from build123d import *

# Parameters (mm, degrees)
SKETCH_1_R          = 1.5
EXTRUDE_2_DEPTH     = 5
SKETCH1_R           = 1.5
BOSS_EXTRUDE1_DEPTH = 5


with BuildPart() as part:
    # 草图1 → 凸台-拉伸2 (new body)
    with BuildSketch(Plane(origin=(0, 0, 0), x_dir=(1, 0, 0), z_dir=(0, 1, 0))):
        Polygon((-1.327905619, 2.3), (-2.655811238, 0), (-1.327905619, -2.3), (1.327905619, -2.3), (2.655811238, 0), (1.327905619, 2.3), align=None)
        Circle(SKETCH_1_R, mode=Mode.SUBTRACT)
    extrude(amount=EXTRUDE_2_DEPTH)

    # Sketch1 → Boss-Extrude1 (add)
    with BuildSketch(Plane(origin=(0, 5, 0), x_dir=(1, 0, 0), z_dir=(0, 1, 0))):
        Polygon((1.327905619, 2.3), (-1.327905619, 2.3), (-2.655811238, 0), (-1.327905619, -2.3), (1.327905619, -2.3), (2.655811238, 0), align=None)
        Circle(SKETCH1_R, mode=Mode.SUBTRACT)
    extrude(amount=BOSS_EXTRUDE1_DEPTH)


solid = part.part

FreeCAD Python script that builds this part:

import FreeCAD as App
import Part
import Sketcher
Q = App.Units.Quantity


def add_polygon(sketch, points):
    """Adds a closed chain of lines whose ends are joined by coincident constraints."""
    first, n = sketch.GeometryCount, len(points)
    for a, b in zip(points, points[1:] + points[:1]):
        sketch.addGeometry(Part.LineSegment(App.Vector(*a, 0), App.Vector(*b, 0)), False)
    for i in range(n):
        sketch.addConstraint(Sketcher.Constraint("Coincident", first + i, 2, first + (i + 1) % n, 1))

doc = App.newDocument("Part")
params = doc.addObject("Spreadsheet::Sheet", "Params")
for row, (alias, value) in enumerate([
    ("sketch1_diameter", "3 mm"),
    ("pad1_length", "5 mm"),
    ("sketch2_diameter", "3 mm"),
    ("pad2_length", "5 mm"),
], start=1):
    params.set(f"A{row}", alias)
    params.set(f"B{row}", "=" + value)
    params.setAlias(f"B{row}", alias)

body = doc.addObject("PartDesign::Body", "Body")

sketch1 = body.newObject("Sketcher::SketchObject", "Sketch")
sketch1.AttachmentSupport = (doc.getObject("XZ_Plane"), [""])
sketch1.MapMode = "FlatFace"
add_polygon(sketch1, [(-1.3, -2.3), (-2.7, 0), (-1.3, 2.3), (1.3, 2.3), (2.7, 0), (1.3, -2.3)])
sketch1.addGeometry(Part.Circle(App.Vector(0, 0, 0), App.Vector(0, 0, 1), 1.5), False)
sketch1.addConstraint([
    Sketcher.Constraint("Horizontal", 2),
    Sketcher.Constraint("Horizontal", 5),
    Sketcher.Constraint("Coincident", 6, 3, -1, 1),
    Sketcher.Constraint("Symmetric", 0, 2, 3, 2, -1, 1),
    Sketcher.Constraint("Symmetric", 1, 2, 4, 2, -1, 1),
    Sketcher.Constraint("PointOnObject", 0, 2, -1),
    Sketcher.Constraint("Parallel", 0, 3),
    Sketcher.Constraint("Vertical", 2, 2, 4, 2),
    Sketcher.Constraint("Diameter", 6, Q("3 mm")),
    Sketcher.Constraint("Angle", 0, Q("120 deg")),
    Sketcher.Constraint("DistanceY", -1, 1, 1, 2, Q("2.3 mm")),
    Sketcher.Constraint("DistanceX", 2, 1, 2, 2, Q("2.655811 mm")),
])
sketch1.setExpression("Constraints[14]", "Params.sketch1_diameter")
pad1 = body.newObject("PartDesign::Pad", "Pad")
pad1.Profile = sketch1
pad1.setExpression("Length", "Params.pad1_length")
pad1.Reversed = True

sketch2 = body.newObject("Sketcher::SketchObject", "Sketch001")
sketch2.AttachmentSupport = (doc.getObject("XZ_Plane"), [""])
sketch2.MapMode = "FlatFace"
sketch2.AttachmentOffset = App.Placement(App.Vector(0, 0, -5), App.Rotation())
add_polygon(sketch2, [(1.3, -2.3), (-1.3, -2.3), (-2.7, 0), (-1.3, 2.3), (1.3, 2.3), (2.7, 0)])
sketch2.addGeometry(Part.Circle(App.Vector(0, 0, 0), App.Vector(0, 0, 1), 1.5), False)
sketch2.addConstraint([
    Sketcher.Constraint("Horizontal", 0),
    Sketcher.Constraint("Horizontal", 3),
    Sketcher.Constraint("Coincident", 6, 3, -1, 1),
    Sketcher.Constraint("Symmetric", 0, 2, 3, 2, -1, 1),
    Sketcher.Constraint("Symmetric", 1, 2, 4, 2, -1, 1),
    Sketcher.Constraint("PointOnObject", 1, 2, -1),
    Sketcher.Constraint("Parallel", 2, 5),
    Sketcher.Constraint("Vertical", 0, 2, 2, 2),
    Sketcher.Constraint("Diameter", 6, Q("3 mm")),
    Sketcher.Constraint("Angle", 1, Q("120 deg")),
    Sketcher.Constraint("DistanceY", 0, 2, -1, 1, Q("2.3 mm")),
    Sketcher.Constraint("DistanceX", 0, 2, 0, 1, Q("2.655811 mm")),
])
sketch2.setExpression("Constraints[14]", "Params.sketch2_diameter")
pad2 = body.newObject("PartDesign::Pad", "Pad001")
pad2.Profile = sketch2
pad2.setExpression("Length", "Params.pad2_length")
pad2.Reversed = True

doc.recompute()
